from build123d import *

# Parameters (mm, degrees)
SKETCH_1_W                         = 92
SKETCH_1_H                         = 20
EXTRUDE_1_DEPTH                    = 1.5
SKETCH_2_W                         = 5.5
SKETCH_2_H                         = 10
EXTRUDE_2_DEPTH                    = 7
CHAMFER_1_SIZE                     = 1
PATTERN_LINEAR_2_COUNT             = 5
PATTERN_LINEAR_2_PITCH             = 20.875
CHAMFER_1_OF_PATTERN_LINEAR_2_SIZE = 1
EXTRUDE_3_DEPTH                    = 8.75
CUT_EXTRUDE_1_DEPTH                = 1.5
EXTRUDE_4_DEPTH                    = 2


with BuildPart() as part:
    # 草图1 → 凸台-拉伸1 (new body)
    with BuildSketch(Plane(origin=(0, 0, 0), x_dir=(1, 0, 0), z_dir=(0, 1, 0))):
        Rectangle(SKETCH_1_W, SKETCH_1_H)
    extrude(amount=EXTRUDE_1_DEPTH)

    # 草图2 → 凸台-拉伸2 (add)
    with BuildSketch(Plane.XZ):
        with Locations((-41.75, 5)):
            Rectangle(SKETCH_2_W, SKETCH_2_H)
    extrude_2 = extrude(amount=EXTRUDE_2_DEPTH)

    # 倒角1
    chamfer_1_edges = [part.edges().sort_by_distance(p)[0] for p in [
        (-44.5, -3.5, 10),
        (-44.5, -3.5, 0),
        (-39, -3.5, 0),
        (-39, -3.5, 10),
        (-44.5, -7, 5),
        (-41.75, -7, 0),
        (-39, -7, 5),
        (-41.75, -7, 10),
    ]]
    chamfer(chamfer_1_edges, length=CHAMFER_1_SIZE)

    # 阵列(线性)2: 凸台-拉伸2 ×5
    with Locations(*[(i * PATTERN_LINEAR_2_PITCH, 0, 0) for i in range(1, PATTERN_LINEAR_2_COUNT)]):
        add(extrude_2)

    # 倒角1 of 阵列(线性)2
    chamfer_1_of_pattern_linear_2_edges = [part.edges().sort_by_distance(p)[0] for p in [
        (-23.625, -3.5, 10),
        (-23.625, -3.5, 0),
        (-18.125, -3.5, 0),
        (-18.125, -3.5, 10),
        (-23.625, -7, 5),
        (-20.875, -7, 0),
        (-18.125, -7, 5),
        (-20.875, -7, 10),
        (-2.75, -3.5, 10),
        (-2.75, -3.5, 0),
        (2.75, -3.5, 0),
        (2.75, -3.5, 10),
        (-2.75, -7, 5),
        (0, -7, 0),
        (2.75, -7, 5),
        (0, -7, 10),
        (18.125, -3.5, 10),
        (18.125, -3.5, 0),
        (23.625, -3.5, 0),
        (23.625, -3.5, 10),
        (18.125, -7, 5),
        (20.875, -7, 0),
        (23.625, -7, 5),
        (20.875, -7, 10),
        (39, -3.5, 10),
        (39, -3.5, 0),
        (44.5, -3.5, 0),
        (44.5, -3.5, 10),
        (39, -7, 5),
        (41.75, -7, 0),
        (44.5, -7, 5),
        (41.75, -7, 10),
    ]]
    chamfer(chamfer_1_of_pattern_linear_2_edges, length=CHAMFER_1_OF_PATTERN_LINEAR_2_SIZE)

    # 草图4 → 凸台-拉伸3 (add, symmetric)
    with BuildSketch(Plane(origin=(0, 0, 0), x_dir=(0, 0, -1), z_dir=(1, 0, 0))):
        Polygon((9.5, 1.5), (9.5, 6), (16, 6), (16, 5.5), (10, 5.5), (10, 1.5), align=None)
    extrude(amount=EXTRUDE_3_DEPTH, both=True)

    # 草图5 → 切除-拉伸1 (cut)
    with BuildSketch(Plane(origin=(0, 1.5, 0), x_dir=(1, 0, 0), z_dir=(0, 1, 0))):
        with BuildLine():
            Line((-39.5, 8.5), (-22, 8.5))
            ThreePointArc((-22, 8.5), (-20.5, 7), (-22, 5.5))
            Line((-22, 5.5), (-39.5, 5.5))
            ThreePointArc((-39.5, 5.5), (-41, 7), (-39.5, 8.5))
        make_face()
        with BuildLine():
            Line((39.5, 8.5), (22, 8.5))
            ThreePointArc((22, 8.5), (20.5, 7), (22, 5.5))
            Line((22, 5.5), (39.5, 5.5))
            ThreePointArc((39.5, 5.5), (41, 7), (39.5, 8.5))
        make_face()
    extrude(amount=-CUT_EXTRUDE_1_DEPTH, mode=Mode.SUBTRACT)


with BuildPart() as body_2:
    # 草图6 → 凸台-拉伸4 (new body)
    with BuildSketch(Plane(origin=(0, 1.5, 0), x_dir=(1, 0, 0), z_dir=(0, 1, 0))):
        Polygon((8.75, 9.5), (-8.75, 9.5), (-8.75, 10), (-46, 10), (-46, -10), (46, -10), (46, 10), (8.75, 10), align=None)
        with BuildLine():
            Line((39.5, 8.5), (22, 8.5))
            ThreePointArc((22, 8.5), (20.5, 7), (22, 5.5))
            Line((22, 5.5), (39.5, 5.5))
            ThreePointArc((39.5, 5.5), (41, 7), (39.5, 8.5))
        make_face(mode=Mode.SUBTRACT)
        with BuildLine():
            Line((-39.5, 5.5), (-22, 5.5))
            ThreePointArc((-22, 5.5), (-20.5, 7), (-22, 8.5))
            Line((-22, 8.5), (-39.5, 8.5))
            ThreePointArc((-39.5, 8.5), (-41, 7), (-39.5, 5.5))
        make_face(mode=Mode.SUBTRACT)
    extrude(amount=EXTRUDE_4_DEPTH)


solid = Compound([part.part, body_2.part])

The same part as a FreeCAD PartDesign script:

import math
import FreeCAD as App
import Part
import Sketcher


def edges_at(feature, points):
    """Names of the edges that pass closest to the given points."""
    edges = feature.Shape.Edges
    near = lambda p: min(range(len(edges)), key=lambda i: edges[i].distToShape(Part.Vertex(*p))[0])
    return sorted({f"Edge{near(p) + 1}" for p in points})

doc = App.newDocument("Part")
params = doc.addObject("Spreadsheet::Sheet", "Params")
for row, (alias, value) in enumerate([
    ("sketch1_width", "92 mm"),
    ("sketch1_height", "20 mm"),
    ("pad1_length", "1.5 mm"),
    ("sketch2_height", "10 mm"),
    ("sketch2_width", "5.5 mm"),
    ("pad2_length", "7 mm"),
    ("chamfer_size", "1 mm"),
    ("linearpattern_pitch", "20.875 mm"),
    ("chamfer2_size", "1 mm"),
    ("sketch3_width", "4 mm"),
    ("sketch3_height", "6 mm"),
    ("sketch3_width2", "4.5 mm"),
    ("pad3_length", "17.5 mm"),
    ("sketch4_radius", "1.5 mm"),
    ("sketch4_width", "17.5 mm"),
    ("pocket1_length", "1.5 mm"),
    ("sketch5_radius", "1.5 mm"),
    ("sketch5_width", "92 mm"),
    ("sketch5_height", "20 mm"),
    ("sketch5_width2", "17.5 mm"),
    ("sketch5_height2", "0.5 mm"),
    ("pad4_length", "2 mm"),
], start=1):
    params.set(f"A{row}", alias)
    params.set(f"B{row}", "=" + value)
    params.setAlias(f"B{row}", alias)

body = doc.addObject("PartDesign::Body", "Body")

# Sketch on XZ plane
sketch1 = body.newObject("Sketcher::SketchObject", "Sketch")
sketch1.AttachmentSupport = (doc.getObject("XZ_Plane"), [""])
sketch1.MapMode = "FlatFace"
sketch1.addGeometry([
    Part.LineSegment(App.Vector(-46, -10, 0), App.Vector(-46, 10, 0)),
    Part.LineSegment(App.Vector(-46, 10, 0), App.Vector(46, 10, 0)),
    Part.LineSegment(App.Vector(46, 10, 0), App.Vector(46, -10, 0)),
    Part.LineSegment(App.Vector(46, -10, 0), App.Vector(-46, -10, 0)),
], False)
sketch1.addConstraint([
    Sketcher.Constraint("Coincident", 0, 2, 1, 1),
    Sketcher.Constraint("Coincident", 1, 2, 2, 1),
    Sketcher.Constraint("Coincident", 2, 2, 3, 1),
    Sketcher.Constraint("Coincident", 3, 2, 0, 1),
    Sketcher.Constraint("Vertical", 0),
    Sketcher.Constraint("Horizontal", 1),
    Sketcher.Constraint("Vertical", 2),
    Sketcher.Constraint("Horizontal", 3),
    Sketcher.Constraint("Symmetric", 0, 2, 2, 2, -1, 1),
    Sketcher.Constraint("DistanceX", 1, 1, 1, 2, 92.0),
    Sketcher.Constraint("DistanceY", 0, 1, 0, 2, 20.0),
])
sketch1.setExpression("Constraints[9]", "Params.sketch1_width")
sketch1.setExpression("Constraints[10]", "Params.sketch1_height")
pad1 = body.newObject("PartDesign::Pad", "Pad")
pad1.Profile = sketch1
pad1.setExpression("Length", "Params.pad1_length")
pad1.Reversed = True

# Sketch on XZ plane
sketch2 = body.newObject("Sketcher::SketchObject", "Sketch001")
sketch2.AttachmentSupport = (doc.getObject("XZ_Plane"), [""])
sketch2.MapMode = "FlatFace"
sketch2.addGeometry([
    Part.LineSegment(App.Vector(-44.5, 10, 0), App.Vector(-44.5, 0, 0)),
    Part.LineSegment(App.Vector(-44.5, 0, 0), App.Vector(-39, 0, 0)),
    Part.LineSegment(App.Vector(-39, 0, 0), App.Vector(-39, 10, 0)),
    Part.LineSegment(App.Vector(-39, 10, 0), App.Vector(-44.5, 10, 0)),
], False)
sketch2.addConstraint([
    Sketcher.Constraint("Coincident", 0, 2, 1, 1),
    Sketcher.Constraint("Coincident", 1, 2, 2, 1),
    Sketcher.Constraint("Coincident", 2, 2, 3, 1),
    Sketcher.Constraint("Coincident", 3, 2, 0, 1),
    Sketcher.Constraint("Vertical", 0),
    Sketcher.Constraint("Horizontal", 1),
    Sketcher.Constraint("Vertical", 2),
    Sketcher.Constraint("Horizontal", 3),
    Sketcher.Constraint("PointOnObject", 0, 2, -1),
    Sketcher.Constraint("DistanceY", 0, 2, 0, 1, 10.0),
    Sketcher.Constraint("DistanceX", 1, 1, 1, 2, 5.5),
    Sketcher.Constraint("DistanceX", 1, 2, -1, 1, 39.0),
])
sketch2.setExpression("Constraints[9]", "Params.sketch2_height")
sketch2.setExpression("Constraints[10]", "Params.sketch2_width")
pad2 = body.newObject("PartDesign::Pad", "Pad001")
pad2.Profile = sketch2
pad2.setExpression("Length", "Params.pad2_length")
doc.recompute()

chamfer = body.newObject("PartDesign::Chamfer", "Chamfer")
chamfer.Base = (pad2, edges_at(pad2, [
    (-44.5, -3.5, 10),
    (-44.5, -3.5, 0),
    (-39, -3.5, 0),
    (-39, -3.5, 10),
    (-44.5, -7, 5),
    (-41.75, -7, 0),
    (-39, -7, 5),
    (-41.75, -7, 10),
]))
chamfer.setExpression("Size", "Params.chamfer_size")
doc.recompute()

linearpattern = body.newObject("PartDesign::LinearPattern", "LinearPattern")
linearpattern.Originals = [pad2]
linearpattern.Direction = (doc.getObject("X_Axis"), [""])
linearpattern.Mode = "offset"
linearpattern.setExpression("Offset", "Params.linearpattern_pitch")
linearpattern.Occurrences = 5
body.Tip = linearpattern
doc.recompute()

chamfer2 = body.newObject("PartDesign::Chamfer", "Chamfer001")
chamfer2.Base = (linearpattern, edges_at(linearpattern, [
    (-23.625, -3.5, 10),
    (-23.625, -3.5, 0),
    (-18.125, -3.5, 0),
    (-18.125, -3.5, 10),
    (-23.625, -7, 5),
    (-20.875, -7, 0),
    (-18.125, -7, 5),
    (-20.875, -7, 10),
    (-2.75, -3.5, 10),
    (-2.75, -3.5, 0),
    (2.75, -3.5, 0),
    (2.75, -3.5, 10),
    (-2.75, -7, 5),
    (0, -7, 0),
    (2.75, -7, 5),
    (0, -7, 10),
    (18.125, -3.5, 10),
    (18.125, -3.5, 0),
    (23.625, -3.5, 0),
    (23.625, -3.5, 10),
    (18.125, -7, 5),
    (20.875, -7, 0),
    (23.625, -7, 5),
    (20.875, -7, 10),
    (39, -3.5, 10),
    (39, -3.5, 0),
    (44.5, -3.5, 0),
    (44.5, -3.5, 10),
    (39, -7, 5),
    (41.75, -7, 0),
    (44.5, -7, 5),
    (41.75, -7, 10),
]))
chamfer2.setExpression("Size", "Params.chamfer2_size")

# Sketch on YZ plane
sketch3 = body.newObject("Sketcher::SketchObject", "Sketch002")
sketch3.AttachmentSupport = (doc.getObject("YZ_Plane"), [""])
sketch3.MapMode = "FlatFace"
sketch3.addGeometry([
    Part.LineSegment(App.Vector(6, -9.5, 0), App.Vector(1.5, -9.5, 0)),  # 0
    Part.LineSegment(App.Vector(1.5, -9.5, 0), App.Vector(1.5, -10, 0)),  # 1
    Part.LineSegment(App.Vector(1.5, -10, 0), App.Vector(5.5, -10, 0)),  # 2
    Part.LineSegment(App.Vector(5.5, -10, 0), App.Vector(5.5, -16, 0)),  # 3
    Part.LineSegment(App.Vector(5.5, -16, 0), App.Vector(6, -16, 0)),  # 4
    Part.LineSegment(App.Vector(6, -16, 0), App.Vector(6, -9.5, 0)),  # 5
], False)
sketch3.addConstraint([
    Sketcher.Constraint("Coincident", 0, 2, 1, 1),
    Sketcher.Constraint("Coincident", 1, 2, 2, 1),
    Sketcher.Constraint("Coincident", 2, 2, 3, 1),
    Sketcher.Constraint("Coincident", 3, 2, 4, 1),
    Sketcher.Constraint("Coincident", 4, 2, 5, 1),
    Sketcher.Constraint("Coincident", 5, 2, 0, 1),
    Sketcher.Constraint("Horizontal", 0),
    Sketcher.Constraint("Vertical", 1),
    Sketcher.Constraint("Horizontal", 2),
    Sketcher.Constraint("Vertical", 3),
    Sketcher.Constraint("Horizontal", 4),
    Sketcher.Constraint("Vertical", 5),
    Sketcher.Constraint("Equal", 4, 1),
    Sketcher.Constraint("DistanceX", 2, 1, 2, 2, 4.0),
    Sketcher.Constraint("DistanceY", 3, 2, 3, 1, 6.0),
    Sketcher.Constraint("DistanceX", 0, 2, 0, 1, 4.5),
    Sketcher.Constraint("DistanceY", 1, 2, -1, 1, 10.0),
    Sketcher.Constraint("DistanceX", -1, 1, 4, 2, 6.0),
])
sketch3.setExpression("Constraints[13]", "Params.sketch3_width")
sketch3.setExpression("Constraints[14]", "Params.sketch3_height")
sketch3.setExpression("Constraints[15]", "Params.sketch3_width2")
pad3 = body.newObject("PartDesign::Pad", "Pad002")
pad3.Profile = sketch3
pad3.setExpression("Length", "Params.pad3_length")
pad3.Midplane = True

# Sketch on XZ plane
sketch4 = body.newObject("Sketcher::SketchObject", "Sketch003")
sketch4.AttachmentSupport = (doc.getObject("XZ_Plane"), [""])
sketch4.MapMode = "FlatFace"
sketch4.AttachmentOffset = App.Placement(App.Vector(0, 0, -1.5), App.Rotation())
sketch4.addGeometry([
    Part.LineSegment(App.Vector(-22, -8.5, 0), App.Vector(-39.5, -8.5, 0)),  # 0
    Part.ArcOfCircle(Part.Circle(App.Vector(-39.5, -7, 0), App.Vector(0, 0, 1), 1.5), math.radians(90), math.radians(270)),  # 1
    Part.LineSegment(App.Vector(-39.5, -5.5, 0), App.Vector(-22, -5.5, 0)),  # 2
    Part.ArcOfCircle(Part.Circle(App.Vector(-22, -7, 0), App.Vector(0, 0, 1), 1.5), math.radians(-90), math.radians(90)),  # 3
    Part.LineSegment(App.Vector(39.5, -8.5, 0), App.Vector(22, -8.5, 0)),  # 4
    Part.ArcOfCircle(Part.Circle(App.Vector(22, -7, 0), App.Vector(0, 0, 1), 1.5), math.radians(90), math.radians(270)),  # 5
    Part.LineSegment(App.Vector(22, -5.5, 0), App.Vector(39.5, -5.5, 0)),  # 6
    Part.ArcOfCircle(Part.Circle(App.Vector(39.5, -7, 0), App.Vector(0, 0, 1), 1.5), math.radians(-90), math.radians(90)),  # 7
], False)
sketch4.addConstraint([
    Sketcher.Constraint("Tangent", 0, 2, 1, 2),
    Sketcher.Constraint("Tangent", 1, 1, 2, 1),
    Sketcher.Constraint("Tangent", 2, 2, 3, 2),
    Sketcher.Constraint("Tangent", 3, 1, 0, 1),
    Sketcher.Constraint("Tangent", 4, 2, 5, 2),
    Sketcher.Constraint("Tangent", 5, 1, 6, 1),
    Sketcher.Constraint("Tangent", 6, 2, 7, 2),
    Sketcher.Constraint("Tangent", 7, 1, 4, 1),
    Sketcher.Constraint("Horizontal", 0),
    Sketcher.Constraint("Horizontal", 2),
    Sketcher.Constraint("Horizontal", 4),
    Sketcher.Constraint("Horizontal", 6),
    Sketcher.Constraint("Equal", 3, 5),
    Sketcher.Constraint("Symmetric", 3, 3, 5, 3, -2),
    Sketcher.Constraint("Equal", 2, 4),
    Sketcher.Constraint("Radius", 1, 1.5),
    Sketcher.Constraint("DistanceX", 0, 2, 0, 1, 17.5),
    Sketcher.Constraint("DistanceY", 1, 3, -1, 1, 7.0),
    Sketcher.Constraint("DistanceX", 3, 3, -1, 1, 22.0),
])
sketch4.setExpression("Constraints[15]", "Params.sketch4_radius")
sketch4.setExpression("Constraints[16]", "Params.sketch4_width")
pocket1 = body.newObject("PartDesign::Pocket", "Pocket")
pocket1.Profile = sketch4
pocket1.setExpression("Length", "Params.pocket1_length")
pocket1.Reversed = True
body2 = doc.addObject("PartDesign::Body", "Body001")

# Sketch on XZ plane
sketch5 = body2.newObject("Sketcher::SketchObject", "Sketch004")
sketch5.AttachmentSupport = (doc.getObject("XZ_Plane001"), [""])
sketch5.MapMode = "FlatFace"
sketch5.AttachmentOffset = App.Placement(App.Vector(0, 0, -1.5), App.Rotation())
sketch5.addGeometry([
    Part.LineSegment(App.Vector(8.75, -9.5, 0), App.Vector(-8.75, -9.5, 0)),  # 0
    Part.LineSegment(App.Vector(-8.75, -9.5, 0), App.Vector(-8.75, -10, 0)),  # 1
    Part.LineSegment(App.Vector(-8.75, -10, 0), App.Vector(-46, -10, 0)),  # 2
    Part.LineSegment(App.Vector(-46, -10, 0), App.Vector(-46, 10, 0)),  # 3
    Part.LineSegment(App.Vector(-46, 10, 0), App.Vector(46, 10, 0)),  # 4
    Part.LineSegment(App.Vector(46, 10, 0), App.Vector(46, -10, 0)),  # 5
    Part.LineSegment(App.Vector(46, -10, 0), App.Vector(8.75, -10, 0)),  # 6
    Part.LineSegment(App.Vector(8.75, -10, 0), App.Vector(8.75, -9.5, 0)),  # 7
    Part.LineSegment(App.Vector(-22, -5.5, 0), App.Vector(-39.5, -5.5, 0)),  # 8
    Part.ArcOfCircle(Part.Circle(App.Vector(-39.5, -7, 0), App.Vector(0, 0, 1), 1.5), math.radians(90), math.radians(270)),  # 9
    Part.LineSegment(App.Vector(-39.5, -8.5, 0), App.Vector(-22, -8.5, 0)),  # 10
    Part.ArcOfCircle(Part.Circle(App.Vector(-22, -7, 0), App.Vector(0, 0, 1), 1.5), math.radians(-90), math.radians(90)),  # 11
    Part.LineSegment(App.Vector(22, -8.5, 0), App.Vector(39.5, -8.5, 0)),  # 12
    Part.ArcOfCircle(Part.Circle(App.Vector(39.5, -7, 0), App.Vector(0, 0, 1), 1.5), math.radians(-90), math.radians(90)),  # 13
    Part.LineSegment(App.Vector(39.5, -5.5, 0), App.Vector(22, -5.5, 0)),  # 14
    Part.ArcOfCircle(Part.Circle(App.Vector(22, -7, 0), App.Vector(0, 0, 1), 1.5), math.radians(90), math.radians(270)),  # 15
], False)
sketch5.addConstraint([
    Sketcher.Constraint("Coincident", 0, 2, 1, 1),
    Sketcher.Constraint("Coincident", 1, 2, 2, 1),
    Sketcher.Constraint("Coincident", 2, 2, 3, 1),
    Sketcher.Constraint("Coincident", 3, 2, 4, 1),
    Sketcher.Constraint("Coincident", 4, 2, 5, 1),
    Sketcher.Constraint("Coincident", 5, 2, 6, 1),
    Sketcher.Constraint("Coincident", 6, 2, 7, 1),
    Sketcher.Constraint("Coincident", 7, 2, 0, 1),
    Sketcher.Constraint("Tangent", 8, 2, 9, 1),
    Sketcher.Constraint("Tangent", 9, 2, 10, 1),
    Sketcher.Constraint("Tangent", 10, 2, 11, 1),
    Sketcher.Constraint("Tangent", 11, 2, 8, 1),
    Sketcher.Constraint("Tangent", 12, 2, 13, 1),
    Sketcher.Constraint("Tangent", 13, 2, 14, 1),
    Sketcher.Constraint("Tangent", 14, 2, 15, 1),
    Sketcher.Constraint("Tangent", 15, 2, 12, 1),
    Sketcher.Constraint("Horizontal", 0),
    Sketcher.Constraint("Vertical", 1),
    Sketcher.Constraint("Horizontal", 2),
    Sketcher.Constraint("Vertical", 3),
    Sketcher.Constraint("Horizontal", 4),
    Sketcher.Constraint("Vertical", 5),
    Sketcher.Constraint("Horizontal", 6),
    Sketcher.Constraint("Vertical", 7),
    Sketcher.Constraint("Horizontal", 8),
    Sketcher.Constraint("Horizontal", 10),
    Sketcher.Constraint("Horizontal", 12),
    Sketcher.Constraint("Horizontal", 14),
    Sketcher.Constraint("Equal", 11, 13),
    Sketcher.Constraint("Symmetric", 2, 2, 4, 2, -1, 1),
    Sketcher.Constraint("Symmetric", 9, 3, 13, 3, -2),
    Sketcher.Constraint("Symmetric", 1, 2, 6, 2, -2),
    Sketcher.Constraint("Equal", 0, 8),
    Sketcher.Constraint("Equal", 10, 12),
    Sketcher.Constraint("Radius", 9, 1.5),
    Sketcher.Constraint("DistanceX", 4, 1, 4, 2, 92.0),
    Sketcher.Constraint("DistanceY", 3, 1, 3, 2, 20.0),
    Sketcher.Constraint("DistanceX", 0, 2, 0, 1, 17.5),
    Sketcher.Constraint("DistanceY", 1, 2, 1, 1, 0.5),
    Sketcher.Constraint("DistanceY", 9, 3, -1, 1, 7.0),
    Sketcher.Constraint("DistanceX", 11, 3, -1, 1, 22.0),
])
sketch5.setExpression("Constraints[34]", "Params.sketch5_radius")
sketch5.setExpression("Constraints[35]", "Params.sketch5_width")
sketch5.setExpression("Constraints[36]", "Params.sketch5_height")
sketch5.setExpression("Constraints[37]", "Params.sketch5_width2")
sketch5.setExpression("Constraints[38]", "Params.sketch5_height2")
pad4 = body2.newObject("PartDesign::Pad", "Pad003")
pad4.Profile = sketch5
pad4.setExpression("Length", "Params.pad4_length")
pad4.Reversed = True

doc.recompute()
